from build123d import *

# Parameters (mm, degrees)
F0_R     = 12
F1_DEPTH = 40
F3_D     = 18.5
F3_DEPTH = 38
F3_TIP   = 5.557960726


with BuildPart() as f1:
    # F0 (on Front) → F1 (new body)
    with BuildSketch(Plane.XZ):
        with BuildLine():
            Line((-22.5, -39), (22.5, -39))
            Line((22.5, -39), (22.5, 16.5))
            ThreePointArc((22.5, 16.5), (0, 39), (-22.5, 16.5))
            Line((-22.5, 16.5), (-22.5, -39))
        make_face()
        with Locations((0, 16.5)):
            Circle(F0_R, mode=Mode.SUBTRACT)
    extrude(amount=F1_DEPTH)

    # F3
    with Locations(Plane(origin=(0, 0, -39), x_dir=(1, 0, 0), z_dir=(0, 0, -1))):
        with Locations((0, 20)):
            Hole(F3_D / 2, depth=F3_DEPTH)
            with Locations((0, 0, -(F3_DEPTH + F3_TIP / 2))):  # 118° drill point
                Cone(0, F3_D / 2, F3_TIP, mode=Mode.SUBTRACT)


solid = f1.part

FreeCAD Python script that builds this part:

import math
import FreeCAD as App
import Part
import Sketcher

V = App.Vector

doc = App.newDocument("Part")
body = doc.addObject("PartDesign::Body", "Body")

# Sketch on XZ plane
sketch1 = body.newObject("Sketcher::SketchObject", "Sketch")
sketch1.AttachmentSupport = (doc.getObject("XZ_Plane"), [""])
sketch1.MapMode = "FlatFace"
sketch1.addGeometry([
    Part.LineSegment(V(-22, -39, 0), V(22, -39, 0)),  # 0
    Part.LineSegment(V(22, -39, 0), V(22, 16, 0)),  # 1
    Part.ArcOfCircle(Part.Circle(V(0, 16, 0), V(0, 0, 1), 22), math.radians(0), math.radians(180)),  # 2
    Part.LineSegment(V(-22, 16, 0), V(-22, -39, 0)),  # 3
    Part.Circle(V(0, 16, 0), V(0, 0, 1), 12),  # 4
], False)
sketch1.addConstraint([
    Sketcher.Constraint("Coincident", 0, 2, 1, 1),
    Sketcher.Constraint("Tangent", 1, 2, 2, 1),
    Sketcher.Constraint("Tangent", 2, 2, 3, 1),
    Sketcher.Constraint("Coincident", 3, 2, 0, 1),
    Sketcher.Constraint("Horizontal", 0),
    Sketcher.Constraint("Vertical", 1),
    Sketcher.Constraint("Vertical", 3),
    Sketcher.Constraint("Coincident", 4, 3, 2, 3),
    Sketcher.Constraint("PointOnObject", 2, 3, -2),
    Sketcher.Constraint("Diameter", 4, 24.0),
    Sketcher.Constraint("Radius", 2, 22.5),
    Sketcher.Constraint("DistanceY", 1, 1, 1, 2, 55.5),
    Sketcher.Constraint("DistanceY", 0, 2, -1, 1, 39.0),
])
pad1 = body.newObject("PartDesign::Pad", "Pad")
pad1.Profile = sketch1
pad1.Length = 40

# Sketch on XY plane
sketch2 = body.newObject("Sketcher::SketchObject", "Sketch001")
sketch2.AttachmentSupport = (doc.getObject("XY_Plane"), [""])
sketch2.MapMode = "FlatFace"
sketch2.AttachmentOffset = App.Placement(V(0, 0, -39), App.Rotation())
sketch2.addGeometry(Part.Circle(V(0, -20, 0), V(0, 0, 1), 9), False)
sketch2.addConstraint([
    Sketcher.Constraint("PointOnObject", 0, 3, -2),
    Sketcher.Constraint("Diameter", 0, 18.5),
    Sketcher.Constraint("DistanceY", 0, 3, -1, 1, 20.0),
])
doc.recompute()
hole = body.newObject("PartDesign::Hole", "Hole")
hole.Profile = sketch2
hole.ThreadType = "None"
hole.Diameter = 18.5
hole.DepthType = "Dimension"
hole.Depth = 38
hole.DrillPoint = "Angled"
hole.DrillPointAngle = 118
hole.Reversed = True

doc.recompute()
